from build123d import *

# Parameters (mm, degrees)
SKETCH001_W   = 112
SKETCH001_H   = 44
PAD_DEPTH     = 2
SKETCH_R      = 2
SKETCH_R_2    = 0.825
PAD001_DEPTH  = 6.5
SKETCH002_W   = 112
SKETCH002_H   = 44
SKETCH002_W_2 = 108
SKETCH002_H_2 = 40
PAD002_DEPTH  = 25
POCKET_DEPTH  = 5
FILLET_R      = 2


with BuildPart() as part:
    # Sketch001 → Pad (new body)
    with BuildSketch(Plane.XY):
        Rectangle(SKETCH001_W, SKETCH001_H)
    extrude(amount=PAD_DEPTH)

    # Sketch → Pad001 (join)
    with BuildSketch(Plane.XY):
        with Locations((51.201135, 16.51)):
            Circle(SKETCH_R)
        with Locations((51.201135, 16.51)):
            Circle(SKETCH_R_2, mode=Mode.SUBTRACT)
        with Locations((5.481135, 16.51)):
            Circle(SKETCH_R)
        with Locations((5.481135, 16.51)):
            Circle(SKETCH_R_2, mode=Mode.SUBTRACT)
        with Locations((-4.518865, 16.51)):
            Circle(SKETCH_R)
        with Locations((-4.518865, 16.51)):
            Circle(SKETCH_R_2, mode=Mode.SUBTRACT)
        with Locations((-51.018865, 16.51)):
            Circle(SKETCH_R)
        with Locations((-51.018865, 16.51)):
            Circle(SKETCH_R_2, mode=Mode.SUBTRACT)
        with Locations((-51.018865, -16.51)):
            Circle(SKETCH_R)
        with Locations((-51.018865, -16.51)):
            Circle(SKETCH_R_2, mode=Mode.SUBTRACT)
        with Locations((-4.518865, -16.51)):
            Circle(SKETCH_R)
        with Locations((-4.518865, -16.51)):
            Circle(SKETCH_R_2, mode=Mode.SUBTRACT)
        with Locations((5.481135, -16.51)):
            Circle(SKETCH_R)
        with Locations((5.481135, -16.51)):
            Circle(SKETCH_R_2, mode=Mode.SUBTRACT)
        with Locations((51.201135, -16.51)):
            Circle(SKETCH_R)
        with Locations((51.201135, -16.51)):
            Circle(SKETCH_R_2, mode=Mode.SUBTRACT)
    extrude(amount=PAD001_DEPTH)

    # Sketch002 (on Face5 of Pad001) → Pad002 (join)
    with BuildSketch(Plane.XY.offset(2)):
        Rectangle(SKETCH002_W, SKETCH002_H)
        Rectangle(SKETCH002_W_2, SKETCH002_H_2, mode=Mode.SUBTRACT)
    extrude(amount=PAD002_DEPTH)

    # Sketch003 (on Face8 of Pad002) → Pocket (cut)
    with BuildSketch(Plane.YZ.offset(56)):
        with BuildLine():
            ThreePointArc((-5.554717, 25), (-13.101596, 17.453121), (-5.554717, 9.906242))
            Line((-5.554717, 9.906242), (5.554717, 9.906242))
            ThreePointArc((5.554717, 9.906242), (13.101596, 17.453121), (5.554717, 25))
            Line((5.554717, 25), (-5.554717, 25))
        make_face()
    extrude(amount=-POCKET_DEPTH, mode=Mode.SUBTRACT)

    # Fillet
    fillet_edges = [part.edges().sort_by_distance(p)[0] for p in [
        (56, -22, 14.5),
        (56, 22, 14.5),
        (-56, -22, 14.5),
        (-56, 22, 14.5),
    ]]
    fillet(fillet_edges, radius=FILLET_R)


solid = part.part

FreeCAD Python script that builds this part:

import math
import FreeCAD as App
import Part
import Sketcher

V = App.Vector


def edges_at(feature, points):
    """Names of the edges that pass closest to the given points."""
    edges = feature.Shape.Edges
    near = lambda p: min(range(len(edges)), key=lambda i: edges[i].distToShape(Part.Vertex(*p))[0])
    return sorted({f"Edge{near(p) + 1}" for p in points})

doc = App.newDocument("Part")
body = doc.addObject("PartDesign::Body", "Body")

sketch1 = body.newObject("Sketcher::SketchObject", "Sketch")
sketch1.AttachmentSupport = (doc.getObject("XY_Plane"), [""])
sketch1.MapMode = "FlatFace"
sketch1.addGeometry([
    Part.LineSegment(V(-56, 22, 0), V(-56, -22, 0)),
    Part.LineSegment(V(-56, -22, 0), V(56, -22, 0)),
    Part.LineSegment(V(56, -22, 0), V(56, 22, 0)),
    Part.LineSegment(V(56, 22, 0), V(-56, 22, 0)),
], False)
sketch1.addConstraint([
    Sketcher.Constraint("Coincident", 0, 2, 1, 1),
    Sketcher.Constraint("Coincident", 1, 2, 2, 1),
    Sketcher.Constraint("Coincident", 2, 2, 3, 1),
    Sketcher.Constraint("Coincident", 3, 2, 0, 1),
    Sketcher.Constraint("Vertical", 0),
    Sketcher.Constraint("Horizontal", 1),
    Sketcher.Constraint("Vertical", 2),
    Sketcher.Constraint("Horizontal", 3),
    Sketcher.Constraint("Symmetric", 0, 2, 2, 2, -1, 1),
    Sketcher.Constraint("DistanceX", 1, 1, 1, 2, 112.0),
    Sketcher.Constraint("DistanceY", 0, 2, 0, 1, 44.0),
])
pad1 = body.newObject("PartDesign::Pad", "Pad")
pad1.Profile = sketch1
pad1.Length = 2

sketch2 = body.newObject("Sketcher::SketchObject", "Sketch001")
sketch2.AttachmentSupport = (doc.getObject("XY_Plane"), [""])
sketch2.MapMode = "FlatFace"
sketch2.addGeometry([
    Part.Circle(V(51.2, 16.5, 0), V(0, 0, 1), 2),
    Part.Circle(V(51.2, 16.5, 0), V(0, 0, 1), 0.8),
    Part.Circle(V(5.5, 16.5, 0), V(0, 0, 1), 2),
    Part.Circle(V(5.5, 16.5, 0), V(0, 0, 1), 0.8),
    Part.Circle(V(-4.5, 16.5, 0), V(0, 0, 1), 2),
    Part.Circle(V(-4.5, 16.5, 0), V(0, 0, 1), 0.8),
    Part.Circle(V(-51, 16.5, 0), V(0, 0, 1), 2),
    Part.Circle(V(-51, 16.5, 0), V(0, 0, 1), 0.8),
    Part.Circle(V(-51, -16.5, 0), V(0, 0, 1), 2),
    Part.Circle(V(-51, -16.5, 0), V(0, 0, 1), 0.8),
    Part.Circle(V(-4.5, -16.5, 0), V(0, 0, 1), 2),
    Part.Circle(V(-4.5, -16.5, 0), V(0, 0, 1), 0.8),
    Part.Circle(V(5.5, -16.5, 0), V(0, 0, 1), 2),
    Part.Circle(V(5.5, -16.5, 0), V(0, 0, 1), 0.8),
    Part.Circle(V(51.2, -16.5, 0), V(0, 0, 1), 2),
    Part.Circle(V(51.2, -16.5, 0), V(0, 0, 1), 0.8),
], False)
sketch2.addConstraint([
    Sketcher.Constraint("Coincident", 1, 3, 0, 3),
    Sketcher.Constraint("Coincident", 3, 3, 2, 3),
    Sketcher.Constraint("Coincident", 5, 3, 4, 3),
    Sketcher.Constraint("Coincident", 7, 3, 6, 3),
    Sketcher.Constraint("Coincident", 9, 3, 8, 3),
    Sketcher.Constraint("Coincident", 11, 3, 10, 3),
    Sketcher.Constraint("Coincident", 13, 3, 12, 3),
    Sketcher.Constraint("Coincident", 15, 3, 14, 3),
    Sketcher.Constraint("Equal", 0, 2),
    Sketcher.Constraint("Equal", 1, 3),
    Sketcher.Constraint("Equal", 2, 4),
    Sketcher.Constraint("Equal", 3, 5),
    Sketcher.Constraint("Equal", 4, 6),
    Sketcher.Constraint("Equal", 5, 7),
    Sketcher.Constraint("Equal", 6, 8),
    Sketcher.Constraint("Equal", 7, 9),
    Sketcher.Constraint("Equal", 8, 10),
    Sketcher.Constraint("Equal", 9, 11),
    Sketcher.Constraint("Equal", 10, 12),
    Sketcher.Constraint("Equal", 11, 13),
    Sketcher.Constraint("Equal", 12, 14),
    Sketcher.Constraint("Equal", 13, 15),
    Sketcher.Constraint("Symmetric", 6, 3, 8, 3, -1),
    Sketcher.Constraint("Symmetric", 4, 3, 10, 3, -1),
    Sketcher.Constraint("Symmetric", 2, 3, 12, 3, -1),
    Sketcher.Constraint("Symmetric", 0, 3, 14, 3, -1),
    Sketcher.Constraint("Horizontal", 1, 3, 2, 3),
    Sketcher.Constraint("Horizontal", 3, 3, 4, 3),
    Sketcher.Constraint("Horizontal", 5, 3, 6, 3),
    Sketcher.Constraint("Diameter", 0, 4.0),
    Sketcher.Constraint("Diameter", 1, 1.65),
    Sketcher.Constraint("DistanceX", 4, 3, 2, 3, 10.0),
    Sketcher.Constraint("DistanceX", 6, 3, 4, 3, 46.5),
    Sketcher.Constraint("DistanceY", -1, 1, 0, 3, 16.51),
    Sketcher.Constraint("DistanceX", 2, 3, 0, 3, 45.72),
    Sketcher.Constraint("DistanceX", -1, 1, 0, 3, 51.201135),
])
pad2 = body.newObject("PartDesign::Pad", "Pad001")
pad2.Profile = sketch2
pad2.Length = 6.5

sketch3 = body.newObject("Sketcher::SketchObject", "Sketch002")
sketch3.AttachmentSupport = (doc.getObject("XY_Plane"), [""])
sketch3.MapMode = "FlatFace"
sketch3.AttachmentOffset = App.Placement(V(0, 0, 2), App.Rotation())
sketch3.addGeometry([
    Part.LineSegment(V(-56, 22, 0), V(-56, -22, 0)),
    Part.LineSegment(V(-56, -22, 0), V(56, -22, 0)),
    Part.LineSegment(V(56, -22, 0), V(56, 22, 0)),
    Part.LineSegment(V(56, 22, 0), V(-56, 22, 0)),
    Part.LineSegment(V(54, -20, 0), V(-54, -20, 0)),
    Part.LineSegment(V(-54, -20, 0), V(-54, 20, 0)),
    Part.LineSegment(V(-54, 20, 0), V(54, 20, 0)),
    Part.LineSegment(V(54, 20, 0), V(54, -20, 0)),
], False)
sketch3.addConstraint([
    Sketcher.Constraint("Coincident", 0, 2, 1, 1),
    Sketcher.Constraint("Coincident", 1, 2, 2, 1),
    Sketcher.Constraint("Coincident", 2, 2, 3, 1),
    Sketcher.Constraint("Coincident", 3, 2, 0, 1),
    Sketcher.Constraint("Coincident", 4, 2, 5, 1),
    Sketcher.Constraint("Coincident", 5, 2, 6, 1),
    Sketcher.Constraint("Coincident", 6, 2, 7, 1),
    Sketcher.Constraint("Coincident", 7, 2, 4, 1),
    Sketcher.Constraint("Vertical", 0),
    Sketcher.Constraint("Horizontal", 1),
    Sketcher.Constraint("Vertical", 2),
    Sketcher.Constraint("Horizontal", 3),
    Sketcher.Constraint("Horizontal", 4),
    Sketcher.Constraint("Vertical", 5),
    Sketcher.Constraint("Horizontal", 6),
    Sketcher.Constraint("Vertical", 7),
    Sketcher.Constraint("Symmetric", 0, 2, 2, 2, -1, 1),
    Sketcher.Constraint("Symmetric", 4, 2, 6, 2, -1, 1),
    Sketcher.Constraint("DistanceX", 1, 1, 1, 2, 112.0),
    Sketcher.Constraint("DistanceX", 4, 2, 4, 1, 108.0),
    Sketcher.Constraint("DistanceY", 0, 2, 0, 1, 44.0),
    Sketcher.Constraint("DistanceY", 5, 1, 5, 2, 40.0),
])
pad3 = body.newObject("PartDesign::Pad", "Pad002")
pad3.Profile = sketch3
pad3.Length = 25

sketch4 = body.newObject("Sketcher::SketchObject", "Sketch003")
sketch4.AttachmentSupport = (doc.getObject("YZ_Plane"), [""])
sketch4.MapMode = "FlatFace"
sketch4.AttachmentOffset = App.Placement(V(0, 0, 56), App.Rotation())
sketch4.addGeometry([
    Part.ArcOfCircle(Part.Circle(V(-6, 17, 0), V(0, 0, 1), 8), math.radians(90), math.radians(270)),
    Part.LineSegment(V(-6, 10, 0), V(6, 10, 0)),
    Part.ArcOfCircle(Part.Circle(V(6, 17, 0), V(0, 0, 1), 8), math.radians(-90), math.radians(90)),
    Part.LineSegment(V(6, 25, 0), V(-6, 25, 0)),
], False)
sketch4.addConstraint([
    Sketcher.Constraint("Tangent", 0, 2, 1, 1),
    Sketcher.Constraint("Tangent", 1, 2, 2, 1),
    Sketcher.Constraint("Tangent", 2, 2, 3, 1),
    Sketcher.Constraint("Tangent", 3, 2, 0, 1),
    Sketcher.Constraint("Horizontal", 1),
    Sketcher.Constraint("Horizontal", 3),
    Sketcher.Constraint("DistanceY", -1, 1, 2, 2, 25.0),
    Sketcher.Constraint("Radius", 0, 7.546879),
    Sketcher.Constraint("DistanceX", 1, 1, 1, 2, 11.109434),
    Sketcher.Constraint("DistanceX", 0, 3, -1, 1, 5.554717),
])
pocket1 = body.newObject("PartDesign::Pocket", "Pocket")
pocket1.Profile = sketch4
pocket1.Length = 5
doc.recompute()

fillet = body.newObject("PartDesign::Fillet", "Fillet")
fillet.Base = (pocket1, edges_at(pocket1, [
    (56, -22, 13.5),
    (56, 22, 13.5),
    (-56, -22, 13.5),
    (-56, 22, 13.5),
]))
fillet.Radius = 2

doc.recompute()
